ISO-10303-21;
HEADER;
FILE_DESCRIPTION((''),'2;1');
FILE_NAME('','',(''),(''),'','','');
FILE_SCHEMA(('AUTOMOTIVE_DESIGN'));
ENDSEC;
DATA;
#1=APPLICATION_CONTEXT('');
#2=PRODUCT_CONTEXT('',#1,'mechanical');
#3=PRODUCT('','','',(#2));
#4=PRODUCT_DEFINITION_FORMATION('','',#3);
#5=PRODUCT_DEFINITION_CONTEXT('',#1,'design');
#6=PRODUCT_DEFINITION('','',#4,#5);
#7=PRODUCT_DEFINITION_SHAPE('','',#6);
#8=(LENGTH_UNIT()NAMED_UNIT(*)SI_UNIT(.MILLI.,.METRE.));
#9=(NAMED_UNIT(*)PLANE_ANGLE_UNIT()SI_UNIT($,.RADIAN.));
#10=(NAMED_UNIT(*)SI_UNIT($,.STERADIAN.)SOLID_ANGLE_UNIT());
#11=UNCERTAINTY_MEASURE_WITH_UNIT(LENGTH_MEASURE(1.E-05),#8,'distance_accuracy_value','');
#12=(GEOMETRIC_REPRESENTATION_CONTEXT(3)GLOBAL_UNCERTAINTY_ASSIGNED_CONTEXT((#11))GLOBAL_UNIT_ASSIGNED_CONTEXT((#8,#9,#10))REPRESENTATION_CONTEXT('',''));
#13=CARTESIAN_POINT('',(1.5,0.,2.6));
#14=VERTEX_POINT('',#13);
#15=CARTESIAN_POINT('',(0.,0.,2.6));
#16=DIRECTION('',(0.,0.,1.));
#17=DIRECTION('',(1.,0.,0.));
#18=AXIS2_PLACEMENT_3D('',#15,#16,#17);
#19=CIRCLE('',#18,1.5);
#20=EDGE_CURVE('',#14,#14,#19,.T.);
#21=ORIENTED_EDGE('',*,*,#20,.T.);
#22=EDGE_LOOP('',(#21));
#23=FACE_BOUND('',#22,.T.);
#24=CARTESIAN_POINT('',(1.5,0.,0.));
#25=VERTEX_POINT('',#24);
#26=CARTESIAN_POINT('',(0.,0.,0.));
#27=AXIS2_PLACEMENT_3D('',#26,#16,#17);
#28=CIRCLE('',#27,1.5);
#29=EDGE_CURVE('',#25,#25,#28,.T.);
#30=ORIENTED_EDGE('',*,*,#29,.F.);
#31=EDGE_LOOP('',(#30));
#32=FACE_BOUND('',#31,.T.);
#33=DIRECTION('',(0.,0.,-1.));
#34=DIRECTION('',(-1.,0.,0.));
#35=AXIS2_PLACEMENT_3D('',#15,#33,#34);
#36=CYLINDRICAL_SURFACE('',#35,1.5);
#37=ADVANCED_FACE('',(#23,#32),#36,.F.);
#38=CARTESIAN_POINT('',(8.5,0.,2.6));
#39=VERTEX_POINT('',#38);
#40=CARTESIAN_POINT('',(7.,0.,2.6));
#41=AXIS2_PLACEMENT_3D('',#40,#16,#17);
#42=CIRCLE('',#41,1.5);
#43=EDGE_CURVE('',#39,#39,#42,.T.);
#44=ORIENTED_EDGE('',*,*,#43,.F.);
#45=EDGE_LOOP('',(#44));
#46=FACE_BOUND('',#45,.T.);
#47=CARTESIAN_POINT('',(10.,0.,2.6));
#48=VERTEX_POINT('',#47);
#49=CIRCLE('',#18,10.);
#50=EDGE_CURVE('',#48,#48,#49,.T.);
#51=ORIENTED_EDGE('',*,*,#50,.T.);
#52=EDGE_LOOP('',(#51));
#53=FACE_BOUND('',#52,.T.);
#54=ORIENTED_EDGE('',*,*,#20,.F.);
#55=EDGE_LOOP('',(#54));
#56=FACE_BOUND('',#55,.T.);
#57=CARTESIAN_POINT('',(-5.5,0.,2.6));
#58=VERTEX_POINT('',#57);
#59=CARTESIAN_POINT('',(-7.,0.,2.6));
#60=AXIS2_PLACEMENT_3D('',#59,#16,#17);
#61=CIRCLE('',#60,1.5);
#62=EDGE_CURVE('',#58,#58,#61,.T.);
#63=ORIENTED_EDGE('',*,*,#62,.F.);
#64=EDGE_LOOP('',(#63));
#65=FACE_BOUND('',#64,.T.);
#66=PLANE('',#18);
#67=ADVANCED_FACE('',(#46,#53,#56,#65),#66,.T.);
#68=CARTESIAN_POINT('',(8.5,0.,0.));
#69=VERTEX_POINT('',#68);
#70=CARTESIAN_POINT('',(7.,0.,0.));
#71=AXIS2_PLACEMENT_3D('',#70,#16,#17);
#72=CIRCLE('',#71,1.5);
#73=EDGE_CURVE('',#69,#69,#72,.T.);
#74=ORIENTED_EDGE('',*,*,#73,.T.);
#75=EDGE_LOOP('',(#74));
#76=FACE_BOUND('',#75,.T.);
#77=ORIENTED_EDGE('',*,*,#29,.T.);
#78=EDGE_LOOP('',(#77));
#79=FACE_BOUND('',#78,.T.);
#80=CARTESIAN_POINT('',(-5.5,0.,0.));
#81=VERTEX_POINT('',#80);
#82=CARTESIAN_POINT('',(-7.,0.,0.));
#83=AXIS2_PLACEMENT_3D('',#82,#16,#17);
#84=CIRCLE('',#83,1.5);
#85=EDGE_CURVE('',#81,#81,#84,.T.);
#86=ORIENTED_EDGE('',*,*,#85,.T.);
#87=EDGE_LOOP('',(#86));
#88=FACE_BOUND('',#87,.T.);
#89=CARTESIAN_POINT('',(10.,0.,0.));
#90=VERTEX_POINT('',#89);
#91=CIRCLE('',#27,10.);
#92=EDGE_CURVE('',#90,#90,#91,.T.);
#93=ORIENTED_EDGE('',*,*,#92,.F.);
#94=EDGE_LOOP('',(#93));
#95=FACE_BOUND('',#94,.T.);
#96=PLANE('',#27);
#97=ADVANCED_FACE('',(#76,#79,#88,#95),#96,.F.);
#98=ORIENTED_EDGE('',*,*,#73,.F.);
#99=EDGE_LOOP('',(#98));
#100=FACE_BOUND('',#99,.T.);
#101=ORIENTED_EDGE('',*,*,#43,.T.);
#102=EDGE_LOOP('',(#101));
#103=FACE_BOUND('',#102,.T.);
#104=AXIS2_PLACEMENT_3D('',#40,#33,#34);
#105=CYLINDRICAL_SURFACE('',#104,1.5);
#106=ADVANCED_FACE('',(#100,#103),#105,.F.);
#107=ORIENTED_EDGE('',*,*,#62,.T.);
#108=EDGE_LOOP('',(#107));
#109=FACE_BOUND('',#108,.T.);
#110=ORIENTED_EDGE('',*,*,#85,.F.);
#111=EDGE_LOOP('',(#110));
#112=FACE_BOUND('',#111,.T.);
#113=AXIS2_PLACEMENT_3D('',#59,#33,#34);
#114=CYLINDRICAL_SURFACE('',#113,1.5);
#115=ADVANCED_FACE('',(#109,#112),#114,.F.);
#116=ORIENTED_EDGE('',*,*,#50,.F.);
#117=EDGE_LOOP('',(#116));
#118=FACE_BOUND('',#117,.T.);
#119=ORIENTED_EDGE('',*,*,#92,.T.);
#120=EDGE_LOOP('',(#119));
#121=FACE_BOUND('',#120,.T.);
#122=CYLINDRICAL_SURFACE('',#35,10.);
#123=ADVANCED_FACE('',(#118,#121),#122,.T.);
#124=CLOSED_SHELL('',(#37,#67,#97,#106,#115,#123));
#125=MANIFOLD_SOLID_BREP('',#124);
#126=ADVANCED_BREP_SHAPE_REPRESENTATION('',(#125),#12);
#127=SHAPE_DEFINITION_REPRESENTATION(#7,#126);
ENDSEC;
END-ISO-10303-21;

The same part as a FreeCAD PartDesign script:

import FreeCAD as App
import Part
import Sketcher

doc = App.newDocument("Part")
body = doc.addObject("PartDesign::Body", "Body")

# Sketch on XY plane
sketch1 = body.newObject("Sketcher::SketchObject", "Sketch")
sketch1.AttachmentSupport = (doc.getObject("XY_Plane"), [""])
sketch1.MapMode = "FlatFace"
sketch1.addGeometry([
    Part.Circle(App.Vector(0, 0, 0), App.Vector(0, 0, 1), 10),
    Part.Circle(App.Vector(-7, 0, 0), App.Vector(0, 0, 1), 1.5),
    Part.Circle(App.Vector(0, 0, 0), App.Vector(0, 0, 1), 1.5),
    Part.Circle(App.Vector(7, 0, 0), App.Vector(0, 0, 1), 1.5),
], False)
sketch1.addConstraint([
    Sketcher.Constraint("Coincident", 0, 3, -1, 1),
    Sketcher.Constraint("Coincident", 2, 3, -1, 1),
    Sketcher.Constraint("Equal", 1, 2),
    Sketcher.Constraint("Equal", 2, 3),
    Sketcher.Constraint("Symmetric", 1, 3, 3, 3, -1, 1),
    Sketcher.Constraint("PointOnObject", 1, 3, -1),
    Sketcher.Constraint("Diameter", 0, 20.0),
    Sketcher.Constraint("Diameter", 1, 3.0),
    Sketcher.Constraint("DistanceX", 1, 3, -1, 1, 7.0),
])
pad1 = body.newObject("PartDesign::Pad", "Pad")
pad1.Profile = sketch1
pad1.Length = 2.6

doc.recompute()
